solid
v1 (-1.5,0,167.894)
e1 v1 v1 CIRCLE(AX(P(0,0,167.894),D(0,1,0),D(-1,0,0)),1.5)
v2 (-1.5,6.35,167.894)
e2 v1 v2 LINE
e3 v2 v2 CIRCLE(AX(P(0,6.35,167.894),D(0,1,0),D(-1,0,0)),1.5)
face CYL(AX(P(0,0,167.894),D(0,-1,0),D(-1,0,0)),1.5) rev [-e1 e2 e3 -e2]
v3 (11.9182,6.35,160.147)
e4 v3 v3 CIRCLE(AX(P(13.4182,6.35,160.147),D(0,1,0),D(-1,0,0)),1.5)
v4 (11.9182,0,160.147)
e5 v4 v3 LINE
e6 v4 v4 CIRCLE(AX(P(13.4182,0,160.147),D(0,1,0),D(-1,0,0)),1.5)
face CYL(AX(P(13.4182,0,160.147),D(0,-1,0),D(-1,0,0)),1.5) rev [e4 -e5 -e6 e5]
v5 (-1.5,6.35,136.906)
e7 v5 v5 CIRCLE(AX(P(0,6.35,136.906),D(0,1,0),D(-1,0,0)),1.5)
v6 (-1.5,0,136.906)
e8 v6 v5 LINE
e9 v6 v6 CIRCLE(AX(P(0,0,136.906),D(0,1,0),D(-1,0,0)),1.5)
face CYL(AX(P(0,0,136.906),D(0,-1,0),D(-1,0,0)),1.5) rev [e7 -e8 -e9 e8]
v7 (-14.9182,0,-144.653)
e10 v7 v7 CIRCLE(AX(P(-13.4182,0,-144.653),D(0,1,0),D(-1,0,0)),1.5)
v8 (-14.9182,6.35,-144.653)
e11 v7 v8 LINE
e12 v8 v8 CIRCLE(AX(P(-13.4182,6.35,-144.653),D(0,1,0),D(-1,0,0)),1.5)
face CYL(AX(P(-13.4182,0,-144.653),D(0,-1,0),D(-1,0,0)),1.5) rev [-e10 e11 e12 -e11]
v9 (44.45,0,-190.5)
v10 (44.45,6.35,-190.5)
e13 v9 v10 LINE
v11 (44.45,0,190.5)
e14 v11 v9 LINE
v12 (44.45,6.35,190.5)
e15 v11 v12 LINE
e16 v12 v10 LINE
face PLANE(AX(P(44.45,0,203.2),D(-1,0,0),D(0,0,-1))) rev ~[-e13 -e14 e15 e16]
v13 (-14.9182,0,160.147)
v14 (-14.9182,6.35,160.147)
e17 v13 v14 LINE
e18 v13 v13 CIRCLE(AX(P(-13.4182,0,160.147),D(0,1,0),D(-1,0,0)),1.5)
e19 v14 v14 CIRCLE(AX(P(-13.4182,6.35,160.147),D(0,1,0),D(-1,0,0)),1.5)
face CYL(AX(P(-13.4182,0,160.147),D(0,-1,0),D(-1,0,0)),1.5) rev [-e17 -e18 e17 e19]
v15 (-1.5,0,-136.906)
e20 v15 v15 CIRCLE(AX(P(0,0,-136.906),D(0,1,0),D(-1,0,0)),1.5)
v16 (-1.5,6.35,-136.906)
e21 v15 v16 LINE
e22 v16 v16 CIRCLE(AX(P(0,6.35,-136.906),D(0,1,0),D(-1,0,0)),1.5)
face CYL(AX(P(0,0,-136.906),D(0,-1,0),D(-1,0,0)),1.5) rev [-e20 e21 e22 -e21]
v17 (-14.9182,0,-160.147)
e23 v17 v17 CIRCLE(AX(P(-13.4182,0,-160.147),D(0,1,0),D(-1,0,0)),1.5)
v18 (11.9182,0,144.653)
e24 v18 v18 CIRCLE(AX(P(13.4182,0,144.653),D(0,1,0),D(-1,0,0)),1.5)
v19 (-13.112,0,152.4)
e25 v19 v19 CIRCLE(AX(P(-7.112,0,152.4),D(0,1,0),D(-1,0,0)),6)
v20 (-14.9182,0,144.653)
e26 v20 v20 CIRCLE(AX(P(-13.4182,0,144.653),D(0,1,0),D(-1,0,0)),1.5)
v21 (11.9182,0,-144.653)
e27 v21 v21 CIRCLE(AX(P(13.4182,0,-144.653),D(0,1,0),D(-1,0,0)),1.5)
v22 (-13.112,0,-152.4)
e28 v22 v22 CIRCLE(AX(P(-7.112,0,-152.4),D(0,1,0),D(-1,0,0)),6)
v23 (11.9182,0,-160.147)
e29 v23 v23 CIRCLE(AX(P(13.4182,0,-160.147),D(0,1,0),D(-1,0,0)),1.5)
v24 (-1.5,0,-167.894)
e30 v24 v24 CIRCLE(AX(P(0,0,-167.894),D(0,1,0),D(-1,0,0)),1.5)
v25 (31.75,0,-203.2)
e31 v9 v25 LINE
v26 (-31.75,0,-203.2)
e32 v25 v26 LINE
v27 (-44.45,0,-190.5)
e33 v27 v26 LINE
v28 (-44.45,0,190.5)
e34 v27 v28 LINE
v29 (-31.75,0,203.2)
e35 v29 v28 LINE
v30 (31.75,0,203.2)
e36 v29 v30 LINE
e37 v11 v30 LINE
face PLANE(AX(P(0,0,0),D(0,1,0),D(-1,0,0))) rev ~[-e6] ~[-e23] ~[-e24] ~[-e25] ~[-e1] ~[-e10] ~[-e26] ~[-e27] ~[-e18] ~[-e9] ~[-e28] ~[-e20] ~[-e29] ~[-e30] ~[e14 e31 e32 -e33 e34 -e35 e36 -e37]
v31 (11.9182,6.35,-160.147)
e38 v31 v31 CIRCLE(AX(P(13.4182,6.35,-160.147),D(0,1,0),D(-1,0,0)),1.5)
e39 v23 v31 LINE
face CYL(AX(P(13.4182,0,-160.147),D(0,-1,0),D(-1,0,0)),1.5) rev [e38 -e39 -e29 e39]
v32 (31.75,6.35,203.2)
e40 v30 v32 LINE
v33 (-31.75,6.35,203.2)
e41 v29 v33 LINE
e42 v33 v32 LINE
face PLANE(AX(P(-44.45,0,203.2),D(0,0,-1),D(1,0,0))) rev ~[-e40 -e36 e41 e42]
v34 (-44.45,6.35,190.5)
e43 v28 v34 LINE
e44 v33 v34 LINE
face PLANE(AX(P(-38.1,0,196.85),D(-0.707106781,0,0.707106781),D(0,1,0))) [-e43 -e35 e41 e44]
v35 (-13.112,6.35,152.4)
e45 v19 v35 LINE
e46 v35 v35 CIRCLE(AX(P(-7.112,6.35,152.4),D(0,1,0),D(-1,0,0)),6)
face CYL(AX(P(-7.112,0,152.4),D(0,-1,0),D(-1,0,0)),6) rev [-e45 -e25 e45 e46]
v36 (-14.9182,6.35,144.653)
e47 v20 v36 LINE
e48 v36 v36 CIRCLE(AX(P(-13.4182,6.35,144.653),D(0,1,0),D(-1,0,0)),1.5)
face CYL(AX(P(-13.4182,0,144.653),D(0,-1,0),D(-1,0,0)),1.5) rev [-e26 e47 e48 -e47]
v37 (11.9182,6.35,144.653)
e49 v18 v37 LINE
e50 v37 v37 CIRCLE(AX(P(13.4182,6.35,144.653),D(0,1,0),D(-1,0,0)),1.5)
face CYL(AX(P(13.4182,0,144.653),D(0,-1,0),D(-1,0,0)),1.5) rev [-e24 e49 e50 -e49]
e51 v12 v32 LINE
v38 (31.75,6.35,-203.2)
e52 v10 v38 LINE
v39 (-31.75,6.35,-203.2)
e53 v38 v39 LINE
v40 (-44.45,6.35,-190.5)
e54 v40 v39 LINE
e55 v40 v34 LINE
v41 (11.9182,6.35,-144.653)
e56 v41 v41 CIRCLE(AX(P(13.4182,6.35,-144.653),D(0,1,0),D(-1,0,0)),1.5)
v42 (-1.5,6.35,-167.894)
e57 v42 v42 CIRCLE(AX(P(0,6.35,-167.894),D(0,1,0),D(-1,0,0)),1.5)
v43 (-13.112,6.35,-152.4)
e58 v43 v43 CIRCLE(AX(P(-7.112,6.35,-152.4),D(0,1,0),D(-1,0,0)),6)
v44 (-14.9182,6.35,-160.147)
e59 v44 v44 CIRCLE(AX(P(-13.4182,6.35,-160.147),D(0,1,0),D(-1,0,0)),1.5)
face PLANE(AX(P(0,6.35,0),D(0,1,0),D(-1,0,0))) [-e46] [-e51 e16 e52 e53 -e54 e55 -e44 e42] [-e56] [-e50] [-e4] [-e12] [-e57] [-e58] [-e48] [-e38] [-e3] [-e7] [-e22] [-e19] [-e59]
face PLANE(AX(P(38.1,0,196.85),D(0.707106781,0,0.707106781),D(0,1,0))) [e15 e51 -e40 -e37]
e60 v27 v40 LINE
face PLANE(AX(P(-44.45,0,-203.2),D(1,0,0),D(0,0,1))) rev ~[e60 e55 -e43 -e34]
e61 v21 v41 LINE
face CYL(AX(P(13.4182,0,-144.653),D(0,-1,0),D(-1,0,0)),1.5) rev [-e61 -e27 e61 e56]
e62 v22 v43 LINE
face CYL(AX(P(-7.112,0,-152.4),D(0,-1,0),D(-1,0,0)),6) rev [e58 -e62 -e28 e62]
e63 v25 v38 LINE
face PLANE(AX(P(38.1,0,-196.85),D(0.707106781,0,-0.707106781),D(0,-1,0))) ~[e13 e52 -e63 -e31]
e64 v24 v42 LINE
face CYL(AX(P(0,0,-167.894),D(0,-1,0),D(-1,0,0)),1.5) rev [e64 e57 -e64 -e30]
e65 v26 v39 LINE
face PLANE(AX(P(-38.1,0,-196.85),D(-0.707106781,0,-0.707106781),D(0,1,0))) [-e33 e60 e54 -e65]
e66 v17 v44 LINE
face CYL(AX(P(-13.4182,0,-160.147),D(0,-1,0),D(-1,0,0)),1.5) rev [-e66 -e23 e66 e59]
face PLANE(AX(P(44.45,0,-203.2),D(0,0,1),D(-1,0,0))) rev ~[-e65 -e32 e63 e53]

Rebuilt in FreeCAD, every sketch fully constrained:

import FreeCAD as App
import Part
import Sketcher

V = App.Vector
Q = App.Units.Quantity


def edges_at(feature, points):
    """Names of the edges that pass closest to the given points."""
    edges = feature.Shape.Edges
    near = lambda p: min(range(len(edges)), key=lambda i: edges[i].distToShape(Part.Vertex(*p))[0])
    return sorted({f"Edge{near(p) + 1}" for p in points})


def add_polygon(sketch, points):
    """Adds a closed chain of lines whose ends are joined by coincident constraints."""
    first, n = sketch.GeometryCount, len(points)
    for a, b in zip(points, points[1:] + points[:1]):
        sketch.addGeometry(Part.LineSegment(App.Vector(*a, 0), App.Vector(*b, 0)), False)
    for i in range(n):
        sketch.addConstraint(Sketcher.Constraint("Coincident", first + i, 2, first + (i + 1) % n, 1))

doc = App.newDocument("Part")
params = doc.addObject("Spreadsheet::Sheet", "Params")
for row, (alias, value) in enumerate([
    ("sketch1_height", "16 in"),
    ("sketch1_width", "3.5 in"),
    ("pad1_length", "0.25 in"),
    ("chamfer_size", "0.5 in"),
], start=1):
    params.set(f"A{row}", alias)
    params.set(f"B{row}", "=" + value)
    params.setAlias(f"B{row}", alias)

body = doc.addObject("PartDesign::Body", "Body")

# Sketch on XZ plane
sketch1 = doc.addObject("Sketcher::SketchObject", "Sketch")
body.addObject(sketch1)
sketch1.AttachmentSupport = (doc.XZ_Plane, [""])
sketch1.MapMode = "FlatFace"
add_polygon(sketch1, [(44.45, 203.2), (44.45, -203.2), (-44.45, -203.2), (-44.45, 203.2)])  # lines 0-3
sketch1.addGeometry(Part.Circle(V(13.4182, -160.147, 0), V(0, 0, 1), 1.5), False)  # 4
sketch1.addGeometry(Part.Circle(V(13.4182, -144.653, 0), V(0, 0, 1), 1.5), False)  # 5
sketch1.addGeometry(Part.Circle(V(0, -167.894, 0), V(0, 0, 1), 1.5), False)  # 6
sketch1.addGeometry(Part.Circle(V(-7.112, -152.4, 0), V(0, 0, 1), 6), False)  # 7
sketch1.addGeometry(Part.Circle(V(-13.4182, -160.147, 0), V(0, 0, 1), 1.5), False)  # 8
sketch1.addGeometry(Part.Circle(V(0, -136.906, 0), V(0, 0, 1), 1.5), False)  # 9
sketch1.addGeometry(Part.Circle(V(-13.4182, -144.653, 0), V(0, 0, 1), 1.5), False)  # 10
sketch1.addGeometry(Part.Circle(V(13.4182, 144.653, 0), V(0, 0, 1), 1.5), False)  # 11
sketch1.addGeometry(Part.Circle(V(13.4182, 160.147, 0), V(0, 0, 1), 1.5), False)  # 12
sketch1.addGeometry(Part.Circle(V(0, 136.906, 0), V(0, 0, 1), 1.5), False)  # 13
sketch1.addGeometry(Part.Circle(V(-13.4182, 144.653, 0), V(0, 0, 1), 1.5), False)  # 14
sketch1.addGeometry(Part.Circle(V(0, 167.894, 0), V(0, 0, 1), 1.5), False)  # 15
sketch1.addGeometry(Part.Circle(V(-7.112, 152.4, 0), V(0, 0, 1), 6), False)  # 16
sketch1.addGeometry(Part.Circle(V(-13.4182, 160.147, 0), V(0, 0, 1), 1.5), False)  # 17
sketch1.addConstraint([
    Sketcher.Constraint("Vertical", 0),
    Sketcher.Constraint("Horizontal", 1),
    Sketcher.Constraint("Vertical", 2),
    Sketcher.Constraint("Horizontal", 3),
    Sketcher.Constraint("Equal", 4, 5),
    Sketcher.Constraint("Equal", 5, 6),
    Sketcher.Constraint("Equal", 6, 8),
    Sketcher.Constraint("Equal", 8, 9),
    Sketcher.Constraint("Equal", 9, 10),
    Sketcher.Constraint("Equal", 10, 11),
    Sketcher.Constraint("Equal", 11, 12),
    Sketcher.Constraint("Equal", 12, 13),
    Sketcher.Constraint("Equal", 13, 14),
    Sketcher.Constraint("Equal", 14, 15),
    Sketcher.Constraint("Equal", 7, 16),
    Sketcher.Constraint("Equal", 15, 17),
    Sketcher.Constraint("Symmetric", 10, 3, 11, 3, -1, 1),
    Sketcher.Constraint("Symmetric", 8, 3, 12, 3, -1, 1),
    Sketcher.Constraint("Symmetric", 9, 3, 13, 3, -1, 1),
    Sketcher.Constraint("Symmetric", 5, 3, 14, 3, -1, 1),
    Sketcher.Constraint("Symmetric", 6, 3, 15, 3, -1, 1),
    Sketcher.Constraint("Symmetric", 4, 3, 17, 3, -1, 1),
    Sketcher.Constraint("Symmetric", 0, 2, 2, 2, -1, 1),
    Sketcher.Constraint("Symmetric", 4, 3, 8, 3, -2),
    Sketcher.Constraint("Symmetric", 5, 3, 10, 3, -2),
    Sketcher.Constraint("Symmetric", 7, 3, 16, 3, -1),
    Sketcher.Constraint("PointOnObject", 6, 3, -2),
    Sketcher.Constraint("PointOnObject", 9, 3, -2),
    Sketcher.Constraint("Vertical", 4, 3, 5, 3),
    Sketcher.Constraint("DistanceY", 0, 2, 0, 1, Q("16 in")),
    Sketcher.Constraint("DistanceX", 1, 2, 1, 1, Q("3.5 in")),
    Sketcher.Constraint("DistanceY", 7, 3, -1, 1, Q("6 in")),
    Sketcher.Constraint("Diameter", 4, Q("0.1181 in")),
    Sketcher.Constraint("Diameter", 7, 12.0),
    Sketcher.Constraint("DistanceX", 7, 3, -1, 1, Q("0.28 in")),
    Sketcher.Constraint("DistanceY", 6, 3, 9, 3, Q("1.22 in")),
    Sketcher.Constraint("DistanceY", 4, 3, 11, 3, Q("12 in")),
    Sketcher.Constraint("DistanceY", 9, 3, 15, 3, Q("12 in")),
    Sketcher.Constraint("DistanceY", 4, 3, 5, 3, Q("0.61 in")),
    Sketcher.Constraint("DistanceX", -1, 1, 4, 3, 13.4182),
])
sketch1.setExpression("Constraints[33]", "Params.sketch1_height")
sketch1.setExpression("Constraints[34]", "Params.sketch1_width")
pad1 = doc.addObject("PartDesign::Pad", "Pad")
body.addObject(pad1)
pad1.Profile = sketch1
pad1.setExpression("Length", "Params.pad1_length")
pad1.Reversed = True
doc.recompute()

chamfer = doc.addObject("PartDesign::Chamfer", "Chamfer")
body.addObject(chamfer)
chamfer.Base = (pad1, edges_at(pad1, [
    (44.45, 3.175, 203.2),
    (44.45, 3.175, -203.2),
    (-44.45, 3.175, 203.2),
    (-44.45, 3.175, -203.2),
]))
chamfer.setExpression("Size", "Params.chamfer_size")

doc.recompute()
